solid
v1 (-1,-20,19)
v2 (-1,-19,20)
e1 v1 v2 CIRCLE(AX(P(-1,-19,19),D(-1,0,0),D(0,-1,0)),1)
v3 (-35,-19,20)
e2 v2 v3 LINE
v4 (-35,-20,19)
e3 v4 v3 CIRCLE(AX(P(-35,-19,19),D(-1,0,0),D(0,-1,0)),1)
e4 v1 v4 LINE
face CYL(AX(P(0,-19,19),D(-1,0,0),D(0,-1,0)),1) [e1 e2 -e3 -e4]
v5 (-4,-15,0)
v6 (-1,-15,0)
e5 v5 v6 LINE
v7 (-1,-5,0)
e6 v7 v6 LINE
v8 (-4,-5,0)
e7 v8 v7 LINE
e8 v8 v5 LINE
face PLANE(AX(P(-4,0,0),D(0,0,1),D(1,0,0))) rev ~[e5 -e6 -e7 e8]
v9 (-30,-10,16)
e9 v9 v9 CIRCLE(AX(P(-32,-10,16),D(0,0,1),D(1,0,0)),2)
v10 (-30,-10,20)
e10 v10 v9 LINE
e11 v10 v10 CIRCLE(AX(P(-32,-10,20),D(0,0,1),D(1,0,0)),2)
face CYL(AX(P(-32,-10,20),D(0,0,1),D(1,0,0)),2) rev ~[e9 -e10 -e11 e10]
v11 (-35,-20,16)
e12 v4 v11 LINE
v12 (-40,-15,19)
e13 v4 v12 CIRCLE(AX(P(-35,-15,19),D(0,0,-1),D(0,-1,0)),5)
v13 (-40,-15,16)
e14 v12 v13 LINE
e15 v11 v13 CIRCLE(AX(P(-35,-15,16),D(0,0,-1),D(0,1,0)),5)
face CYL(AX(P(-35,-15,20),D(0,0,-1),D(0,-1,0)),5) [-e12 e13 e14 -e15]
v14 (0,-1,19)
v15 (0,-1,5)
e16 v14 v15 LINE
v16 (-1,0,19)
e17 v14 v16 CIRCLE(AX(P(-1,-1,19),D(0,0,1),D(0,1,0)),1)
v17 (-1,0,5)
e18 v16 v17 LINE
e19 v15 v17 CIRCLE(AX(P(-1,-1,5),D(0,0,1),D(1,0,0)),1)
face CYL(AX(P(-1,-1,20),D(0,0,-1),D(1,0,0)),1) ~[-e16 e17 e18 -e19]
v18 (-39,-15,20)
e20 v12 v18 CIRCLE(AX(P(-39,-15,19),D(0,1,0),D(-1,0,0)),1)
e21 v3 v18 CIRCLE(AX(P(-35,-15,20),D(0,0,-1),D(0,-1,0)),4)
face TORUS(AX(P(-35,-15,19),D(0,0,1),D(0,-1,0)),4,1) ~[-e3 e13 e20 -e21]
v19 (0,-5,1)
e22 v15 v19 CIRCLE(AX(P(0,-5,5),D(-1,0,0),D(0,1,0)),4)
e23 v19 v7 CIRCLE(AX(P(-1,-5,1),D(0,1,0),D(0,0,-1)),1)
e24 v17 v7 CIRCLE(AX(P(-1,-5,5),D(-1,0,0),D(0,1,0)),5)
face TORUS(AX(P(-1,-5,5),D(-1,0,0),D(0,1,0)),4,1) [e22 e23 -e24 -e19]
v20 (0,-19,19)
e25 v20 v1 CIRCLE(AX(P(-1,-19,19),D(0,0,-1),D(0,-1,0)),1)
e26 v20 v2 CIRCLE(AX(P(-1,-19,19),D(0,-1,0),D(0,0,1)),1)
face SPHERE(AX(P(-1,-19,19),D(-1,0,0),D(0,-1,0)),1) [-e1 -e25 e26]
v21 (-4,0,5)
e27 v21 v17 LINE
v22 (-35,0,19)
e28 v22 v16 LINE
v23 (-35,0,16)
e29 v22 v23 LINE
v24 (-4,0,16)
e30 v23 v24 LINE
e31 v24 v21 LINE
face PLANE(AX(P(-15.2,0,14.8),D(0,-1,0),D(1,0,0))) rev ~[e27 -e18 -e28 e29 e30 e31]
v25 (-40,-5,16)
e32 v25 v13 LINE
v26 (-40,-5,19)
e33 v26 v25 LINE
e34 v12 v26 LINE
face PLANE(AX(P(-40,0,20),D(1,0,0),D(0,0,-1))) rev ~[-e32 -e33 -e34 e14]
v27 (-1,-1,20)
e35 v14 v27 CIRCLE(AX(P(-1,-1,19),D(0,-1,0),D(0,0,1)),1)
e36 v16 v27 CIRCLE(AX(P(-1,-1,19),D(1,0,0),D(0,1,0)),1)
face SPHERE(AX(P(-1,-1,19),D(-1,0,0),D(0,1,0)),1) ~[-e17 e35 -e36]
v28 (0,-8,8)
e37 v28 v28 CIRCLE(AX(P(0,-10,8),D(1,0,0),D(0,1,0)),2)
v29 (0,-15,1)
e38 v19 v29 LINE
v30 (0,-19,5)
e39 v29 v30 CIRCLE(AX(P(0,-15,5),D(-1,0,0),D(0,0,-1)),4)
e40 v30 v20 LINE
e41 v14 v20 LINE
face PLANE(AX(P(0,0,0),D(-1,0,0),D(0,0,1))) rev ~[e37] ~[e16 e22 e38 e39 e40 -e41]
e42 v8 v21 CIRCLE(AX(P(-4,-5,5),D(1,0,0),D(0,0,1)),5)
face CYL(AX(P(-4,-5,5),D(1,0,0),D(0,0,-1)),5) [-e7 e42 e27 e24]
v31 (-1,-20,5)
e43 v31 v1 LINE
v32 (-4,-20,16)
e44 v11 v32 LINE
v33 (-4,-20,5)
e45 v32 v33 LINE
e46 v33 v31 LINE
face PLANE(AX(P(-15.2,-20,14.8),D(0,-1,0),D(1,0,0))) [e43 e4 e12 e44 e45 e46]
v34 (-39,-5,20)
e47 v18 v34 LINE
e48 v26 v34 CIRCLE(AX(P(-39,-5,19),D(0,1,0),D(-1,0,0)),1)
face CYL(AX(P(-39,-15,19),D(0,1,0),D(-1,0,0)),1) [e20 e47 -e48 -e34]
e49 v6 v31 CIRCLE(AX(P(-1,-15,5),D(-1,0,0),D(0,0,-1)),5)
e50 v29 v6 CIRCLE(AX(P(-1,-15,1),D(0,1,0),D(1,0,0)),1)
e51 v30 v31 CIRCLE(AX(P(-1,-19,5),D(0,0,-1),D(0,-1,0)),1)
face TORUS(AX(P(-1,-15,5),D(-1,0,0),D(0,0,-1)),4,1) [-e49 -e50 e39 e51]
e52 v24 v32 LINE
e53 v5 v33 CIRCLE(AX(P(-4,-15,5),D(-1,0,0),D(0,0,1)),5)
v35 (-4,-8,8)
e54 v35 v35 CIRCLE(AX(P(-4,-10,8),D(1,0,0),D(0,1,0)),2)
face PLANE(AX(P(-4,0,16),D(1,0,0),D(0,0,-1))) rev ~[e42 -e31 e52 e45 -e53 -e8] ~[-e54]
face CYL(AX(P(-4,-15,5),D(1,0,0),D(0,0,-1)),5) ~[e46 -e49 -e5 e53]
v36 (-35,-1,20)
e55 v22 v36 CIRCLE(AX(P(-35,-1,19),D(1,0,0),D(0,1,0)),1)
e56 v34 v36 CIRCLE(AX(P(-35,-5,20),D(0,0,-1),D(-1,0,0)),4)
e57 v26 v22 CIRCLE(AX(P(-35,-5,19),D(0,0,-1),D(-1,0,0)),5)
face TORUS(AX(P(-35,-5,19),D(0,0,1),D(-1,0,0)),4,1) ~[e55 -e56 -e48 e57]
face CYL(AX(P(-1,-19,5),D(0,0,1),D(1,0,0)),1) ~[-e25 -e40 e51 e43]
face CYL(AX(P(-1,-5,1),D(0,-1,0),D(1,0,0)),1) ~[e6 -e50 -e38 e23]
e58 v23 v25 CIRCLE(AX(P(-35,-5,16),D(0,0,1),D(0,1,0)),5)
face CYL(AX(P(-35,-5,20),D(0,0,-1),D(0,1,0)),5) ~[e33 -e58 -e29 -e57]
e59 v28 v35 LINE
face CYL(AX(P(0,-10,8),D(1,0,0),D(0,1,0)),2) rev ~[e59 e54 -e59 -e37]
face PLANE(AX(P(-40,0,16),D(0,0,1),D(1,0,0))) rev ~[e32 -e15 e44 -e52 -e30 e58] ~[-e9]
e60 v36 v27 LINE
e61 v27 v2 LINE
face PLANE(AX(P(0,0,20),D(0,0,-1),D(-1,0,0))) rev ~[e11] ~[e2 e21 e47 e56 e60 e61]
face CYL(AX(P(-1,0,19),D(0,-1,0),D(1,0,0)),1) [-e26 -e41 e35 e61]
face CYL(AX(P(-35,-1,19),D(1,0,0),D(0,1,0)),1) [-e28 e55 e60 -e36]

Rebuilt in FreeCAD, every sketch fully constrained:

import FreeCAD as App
import Part
import Sketcher
from FreeCAD import Vector


def edges_at(feature, points):
    """Names of the edges that pass closest to the given points."""
    edges = feature.Shape.Edges
    near = lambda p: min(range(len(edges)), key=lambda i: edges[i].distToShape(Part.Vertex(*p))[0])
    return sorted({f"Edge{near(p) + 1}" for p in points})

doc = App.newDocument("Part")
body = doc.addObject("PartDesign::Body", "Body")

sketch1 = doc.addObject("Sketcher::SketchObject", "Sketch")
body.addObject(sketch1)
sketch1.AttachmentSupport = (doc.XZ_Plane, [""])
sketch1.MapMode = "FlatFace"
sketch1.addGeometry([
    Part.LineSegment(Vector(-4, 0, 0), Vector(0, 0, 0)),
    Part.LineSegment(Vector(0, 0, 0), Vector(0, 20, 0)),
    Part.LineSegment(Vector(0, 20, 0), Vector(-40, 20, 0)),
    Part.LineSegment(Vector(-40, 20, 0), Vector(-40, 16, 0)),
    Part.LineSegment(Vector(-40, 16, 0), Vector(-4, 16, 0)),
    Part.LineSegment(Vector(-4, 16, 0), Vector(-4, 0, 0)),
], False)
sketch1.addConstraint([
    Sketcher.Constraint("Coincident", 0, 2, 1, 1),
    Sketcher.Constraint("Coincident", 1, 2, 2, 1),
    Sketcher.Constraint("Coincident", 2, 2, 3, 1),
    Sketcher.Constraint("Coincident", 3, 2, 4, 1),
    Sketcher.Constraint("Coincident", 4, 2, 5, 1),
    Sketcher.Constraint("Coincident", 5, 2, 0, 1),
    Sketcher.Constraint("Horizontal", 0),
    Sketcher.Constraint("Vertical", 1),
    Sketcher.Constraint("Horizontal", 2),
    Sketcher.Constraint("Vertical", 3),
    Sketcher.Constraint("Horizontal", 4),
    Sketcher.Constraint("Vertical", 5),
    Sketcher.Constraint("Coincident", 0, 2, -1, 1),
    Sketcher.Constraint("Equal", 0, 3),
    Sketcher.Constraint("DistanceX", 0, 1, 0, 2, 4.0),
    Sketcher.Constraint("DistanceX", 2, 2, 2, 1, 40.0),
    Sketcher.Constraint("DistanceY", 1, 1, 1, 2, 20.0),
])
pad1 = doc.addObject("PartDesign::Pad", "Pad")
body.addObject(pad1)
pad1.Profile = sketch1
pad1.Length = 20

sketch2 = doc.addObject("Sketcher::SketchObject", "Sketch001")
body.addObject(sketch2)
sketch2.AttachmentSupport = (doc.XY_Plane, [""])
sketch2.MapMode = "FlatFace"
sketch2.AttachmentOffset = App.Placement(Vector(0, 0, 20), App.Rotation())
sketch2.addGeometry(Part.Circle(Vector(-32, -10, 0), Vector(0, 0, 1), 2), False)
sketch2.addConstraint([
    Sketcher.Constraint("Diameter", 0, 4.0),
    Sketcher.Constraint("DistanceX", 0, 3, -1, 1, 32.0),
    Sketcher.Constraint("DistanceY", 0, 3, -1, 1, 10.0),
])
pocket1 = doc.addObject("PartDesign::Pocket", "Pocket")
body.addObject(pocket1)
pocket1.Profile = sketch2
pocket1.Length = 25

sketch3 = doc.addObject("Sketcher::SketchObject", "Sketch002")
body.addObject(sketch3)
sketch3.AttachmentSupport = (doc.YZ_Plane, [""])
sketch3.MapMode = "FlatFace"
sketch3.addGeometry(Part.Circle(Vector(-10, 8, 0), Vector(0, 0, 1), 2), False)
sketch3.addConstraint([
    Sketcher.Constraint("Diameter", 0, 4.0),
    Sketcher.Constraint("DistanceX", 0, 3, -1, 1, 10.0),
    Sketcher.Constraint("DistanceY", -1, 1, 0, 3, 8.0),
])
pocket2 = doc.addObject("PartDesign::Pocket", "Pocket001")
body.addObject(pocket2)
pocket2.Profile = sketch3
pocket2.Length = 25
doc.recompute()

fillet = doc.addObject("PartDesign::Fillet", "Fillet")
body.addObject(fillet)
fillet.Base = (pocket2, edges_at(pocket2, [
    (-2, -20, 0),
    (-2, 0, 0),
    (-40, -20, 18),
    (-40, 0, 18),
]))
fillet.Radius = 5
doc.recompute()

fillet2 = doc.addObject("PartDesign::Fillet", "Fillet001")
body.addObject(fillet2)
fillet2.Base = (fillet, edges_at(fillet, [(-17.5, -20, 20), (0, -20, 12.5), (0, -10, 20)]))
fillet2.Radius = 1

doc.recompute()
